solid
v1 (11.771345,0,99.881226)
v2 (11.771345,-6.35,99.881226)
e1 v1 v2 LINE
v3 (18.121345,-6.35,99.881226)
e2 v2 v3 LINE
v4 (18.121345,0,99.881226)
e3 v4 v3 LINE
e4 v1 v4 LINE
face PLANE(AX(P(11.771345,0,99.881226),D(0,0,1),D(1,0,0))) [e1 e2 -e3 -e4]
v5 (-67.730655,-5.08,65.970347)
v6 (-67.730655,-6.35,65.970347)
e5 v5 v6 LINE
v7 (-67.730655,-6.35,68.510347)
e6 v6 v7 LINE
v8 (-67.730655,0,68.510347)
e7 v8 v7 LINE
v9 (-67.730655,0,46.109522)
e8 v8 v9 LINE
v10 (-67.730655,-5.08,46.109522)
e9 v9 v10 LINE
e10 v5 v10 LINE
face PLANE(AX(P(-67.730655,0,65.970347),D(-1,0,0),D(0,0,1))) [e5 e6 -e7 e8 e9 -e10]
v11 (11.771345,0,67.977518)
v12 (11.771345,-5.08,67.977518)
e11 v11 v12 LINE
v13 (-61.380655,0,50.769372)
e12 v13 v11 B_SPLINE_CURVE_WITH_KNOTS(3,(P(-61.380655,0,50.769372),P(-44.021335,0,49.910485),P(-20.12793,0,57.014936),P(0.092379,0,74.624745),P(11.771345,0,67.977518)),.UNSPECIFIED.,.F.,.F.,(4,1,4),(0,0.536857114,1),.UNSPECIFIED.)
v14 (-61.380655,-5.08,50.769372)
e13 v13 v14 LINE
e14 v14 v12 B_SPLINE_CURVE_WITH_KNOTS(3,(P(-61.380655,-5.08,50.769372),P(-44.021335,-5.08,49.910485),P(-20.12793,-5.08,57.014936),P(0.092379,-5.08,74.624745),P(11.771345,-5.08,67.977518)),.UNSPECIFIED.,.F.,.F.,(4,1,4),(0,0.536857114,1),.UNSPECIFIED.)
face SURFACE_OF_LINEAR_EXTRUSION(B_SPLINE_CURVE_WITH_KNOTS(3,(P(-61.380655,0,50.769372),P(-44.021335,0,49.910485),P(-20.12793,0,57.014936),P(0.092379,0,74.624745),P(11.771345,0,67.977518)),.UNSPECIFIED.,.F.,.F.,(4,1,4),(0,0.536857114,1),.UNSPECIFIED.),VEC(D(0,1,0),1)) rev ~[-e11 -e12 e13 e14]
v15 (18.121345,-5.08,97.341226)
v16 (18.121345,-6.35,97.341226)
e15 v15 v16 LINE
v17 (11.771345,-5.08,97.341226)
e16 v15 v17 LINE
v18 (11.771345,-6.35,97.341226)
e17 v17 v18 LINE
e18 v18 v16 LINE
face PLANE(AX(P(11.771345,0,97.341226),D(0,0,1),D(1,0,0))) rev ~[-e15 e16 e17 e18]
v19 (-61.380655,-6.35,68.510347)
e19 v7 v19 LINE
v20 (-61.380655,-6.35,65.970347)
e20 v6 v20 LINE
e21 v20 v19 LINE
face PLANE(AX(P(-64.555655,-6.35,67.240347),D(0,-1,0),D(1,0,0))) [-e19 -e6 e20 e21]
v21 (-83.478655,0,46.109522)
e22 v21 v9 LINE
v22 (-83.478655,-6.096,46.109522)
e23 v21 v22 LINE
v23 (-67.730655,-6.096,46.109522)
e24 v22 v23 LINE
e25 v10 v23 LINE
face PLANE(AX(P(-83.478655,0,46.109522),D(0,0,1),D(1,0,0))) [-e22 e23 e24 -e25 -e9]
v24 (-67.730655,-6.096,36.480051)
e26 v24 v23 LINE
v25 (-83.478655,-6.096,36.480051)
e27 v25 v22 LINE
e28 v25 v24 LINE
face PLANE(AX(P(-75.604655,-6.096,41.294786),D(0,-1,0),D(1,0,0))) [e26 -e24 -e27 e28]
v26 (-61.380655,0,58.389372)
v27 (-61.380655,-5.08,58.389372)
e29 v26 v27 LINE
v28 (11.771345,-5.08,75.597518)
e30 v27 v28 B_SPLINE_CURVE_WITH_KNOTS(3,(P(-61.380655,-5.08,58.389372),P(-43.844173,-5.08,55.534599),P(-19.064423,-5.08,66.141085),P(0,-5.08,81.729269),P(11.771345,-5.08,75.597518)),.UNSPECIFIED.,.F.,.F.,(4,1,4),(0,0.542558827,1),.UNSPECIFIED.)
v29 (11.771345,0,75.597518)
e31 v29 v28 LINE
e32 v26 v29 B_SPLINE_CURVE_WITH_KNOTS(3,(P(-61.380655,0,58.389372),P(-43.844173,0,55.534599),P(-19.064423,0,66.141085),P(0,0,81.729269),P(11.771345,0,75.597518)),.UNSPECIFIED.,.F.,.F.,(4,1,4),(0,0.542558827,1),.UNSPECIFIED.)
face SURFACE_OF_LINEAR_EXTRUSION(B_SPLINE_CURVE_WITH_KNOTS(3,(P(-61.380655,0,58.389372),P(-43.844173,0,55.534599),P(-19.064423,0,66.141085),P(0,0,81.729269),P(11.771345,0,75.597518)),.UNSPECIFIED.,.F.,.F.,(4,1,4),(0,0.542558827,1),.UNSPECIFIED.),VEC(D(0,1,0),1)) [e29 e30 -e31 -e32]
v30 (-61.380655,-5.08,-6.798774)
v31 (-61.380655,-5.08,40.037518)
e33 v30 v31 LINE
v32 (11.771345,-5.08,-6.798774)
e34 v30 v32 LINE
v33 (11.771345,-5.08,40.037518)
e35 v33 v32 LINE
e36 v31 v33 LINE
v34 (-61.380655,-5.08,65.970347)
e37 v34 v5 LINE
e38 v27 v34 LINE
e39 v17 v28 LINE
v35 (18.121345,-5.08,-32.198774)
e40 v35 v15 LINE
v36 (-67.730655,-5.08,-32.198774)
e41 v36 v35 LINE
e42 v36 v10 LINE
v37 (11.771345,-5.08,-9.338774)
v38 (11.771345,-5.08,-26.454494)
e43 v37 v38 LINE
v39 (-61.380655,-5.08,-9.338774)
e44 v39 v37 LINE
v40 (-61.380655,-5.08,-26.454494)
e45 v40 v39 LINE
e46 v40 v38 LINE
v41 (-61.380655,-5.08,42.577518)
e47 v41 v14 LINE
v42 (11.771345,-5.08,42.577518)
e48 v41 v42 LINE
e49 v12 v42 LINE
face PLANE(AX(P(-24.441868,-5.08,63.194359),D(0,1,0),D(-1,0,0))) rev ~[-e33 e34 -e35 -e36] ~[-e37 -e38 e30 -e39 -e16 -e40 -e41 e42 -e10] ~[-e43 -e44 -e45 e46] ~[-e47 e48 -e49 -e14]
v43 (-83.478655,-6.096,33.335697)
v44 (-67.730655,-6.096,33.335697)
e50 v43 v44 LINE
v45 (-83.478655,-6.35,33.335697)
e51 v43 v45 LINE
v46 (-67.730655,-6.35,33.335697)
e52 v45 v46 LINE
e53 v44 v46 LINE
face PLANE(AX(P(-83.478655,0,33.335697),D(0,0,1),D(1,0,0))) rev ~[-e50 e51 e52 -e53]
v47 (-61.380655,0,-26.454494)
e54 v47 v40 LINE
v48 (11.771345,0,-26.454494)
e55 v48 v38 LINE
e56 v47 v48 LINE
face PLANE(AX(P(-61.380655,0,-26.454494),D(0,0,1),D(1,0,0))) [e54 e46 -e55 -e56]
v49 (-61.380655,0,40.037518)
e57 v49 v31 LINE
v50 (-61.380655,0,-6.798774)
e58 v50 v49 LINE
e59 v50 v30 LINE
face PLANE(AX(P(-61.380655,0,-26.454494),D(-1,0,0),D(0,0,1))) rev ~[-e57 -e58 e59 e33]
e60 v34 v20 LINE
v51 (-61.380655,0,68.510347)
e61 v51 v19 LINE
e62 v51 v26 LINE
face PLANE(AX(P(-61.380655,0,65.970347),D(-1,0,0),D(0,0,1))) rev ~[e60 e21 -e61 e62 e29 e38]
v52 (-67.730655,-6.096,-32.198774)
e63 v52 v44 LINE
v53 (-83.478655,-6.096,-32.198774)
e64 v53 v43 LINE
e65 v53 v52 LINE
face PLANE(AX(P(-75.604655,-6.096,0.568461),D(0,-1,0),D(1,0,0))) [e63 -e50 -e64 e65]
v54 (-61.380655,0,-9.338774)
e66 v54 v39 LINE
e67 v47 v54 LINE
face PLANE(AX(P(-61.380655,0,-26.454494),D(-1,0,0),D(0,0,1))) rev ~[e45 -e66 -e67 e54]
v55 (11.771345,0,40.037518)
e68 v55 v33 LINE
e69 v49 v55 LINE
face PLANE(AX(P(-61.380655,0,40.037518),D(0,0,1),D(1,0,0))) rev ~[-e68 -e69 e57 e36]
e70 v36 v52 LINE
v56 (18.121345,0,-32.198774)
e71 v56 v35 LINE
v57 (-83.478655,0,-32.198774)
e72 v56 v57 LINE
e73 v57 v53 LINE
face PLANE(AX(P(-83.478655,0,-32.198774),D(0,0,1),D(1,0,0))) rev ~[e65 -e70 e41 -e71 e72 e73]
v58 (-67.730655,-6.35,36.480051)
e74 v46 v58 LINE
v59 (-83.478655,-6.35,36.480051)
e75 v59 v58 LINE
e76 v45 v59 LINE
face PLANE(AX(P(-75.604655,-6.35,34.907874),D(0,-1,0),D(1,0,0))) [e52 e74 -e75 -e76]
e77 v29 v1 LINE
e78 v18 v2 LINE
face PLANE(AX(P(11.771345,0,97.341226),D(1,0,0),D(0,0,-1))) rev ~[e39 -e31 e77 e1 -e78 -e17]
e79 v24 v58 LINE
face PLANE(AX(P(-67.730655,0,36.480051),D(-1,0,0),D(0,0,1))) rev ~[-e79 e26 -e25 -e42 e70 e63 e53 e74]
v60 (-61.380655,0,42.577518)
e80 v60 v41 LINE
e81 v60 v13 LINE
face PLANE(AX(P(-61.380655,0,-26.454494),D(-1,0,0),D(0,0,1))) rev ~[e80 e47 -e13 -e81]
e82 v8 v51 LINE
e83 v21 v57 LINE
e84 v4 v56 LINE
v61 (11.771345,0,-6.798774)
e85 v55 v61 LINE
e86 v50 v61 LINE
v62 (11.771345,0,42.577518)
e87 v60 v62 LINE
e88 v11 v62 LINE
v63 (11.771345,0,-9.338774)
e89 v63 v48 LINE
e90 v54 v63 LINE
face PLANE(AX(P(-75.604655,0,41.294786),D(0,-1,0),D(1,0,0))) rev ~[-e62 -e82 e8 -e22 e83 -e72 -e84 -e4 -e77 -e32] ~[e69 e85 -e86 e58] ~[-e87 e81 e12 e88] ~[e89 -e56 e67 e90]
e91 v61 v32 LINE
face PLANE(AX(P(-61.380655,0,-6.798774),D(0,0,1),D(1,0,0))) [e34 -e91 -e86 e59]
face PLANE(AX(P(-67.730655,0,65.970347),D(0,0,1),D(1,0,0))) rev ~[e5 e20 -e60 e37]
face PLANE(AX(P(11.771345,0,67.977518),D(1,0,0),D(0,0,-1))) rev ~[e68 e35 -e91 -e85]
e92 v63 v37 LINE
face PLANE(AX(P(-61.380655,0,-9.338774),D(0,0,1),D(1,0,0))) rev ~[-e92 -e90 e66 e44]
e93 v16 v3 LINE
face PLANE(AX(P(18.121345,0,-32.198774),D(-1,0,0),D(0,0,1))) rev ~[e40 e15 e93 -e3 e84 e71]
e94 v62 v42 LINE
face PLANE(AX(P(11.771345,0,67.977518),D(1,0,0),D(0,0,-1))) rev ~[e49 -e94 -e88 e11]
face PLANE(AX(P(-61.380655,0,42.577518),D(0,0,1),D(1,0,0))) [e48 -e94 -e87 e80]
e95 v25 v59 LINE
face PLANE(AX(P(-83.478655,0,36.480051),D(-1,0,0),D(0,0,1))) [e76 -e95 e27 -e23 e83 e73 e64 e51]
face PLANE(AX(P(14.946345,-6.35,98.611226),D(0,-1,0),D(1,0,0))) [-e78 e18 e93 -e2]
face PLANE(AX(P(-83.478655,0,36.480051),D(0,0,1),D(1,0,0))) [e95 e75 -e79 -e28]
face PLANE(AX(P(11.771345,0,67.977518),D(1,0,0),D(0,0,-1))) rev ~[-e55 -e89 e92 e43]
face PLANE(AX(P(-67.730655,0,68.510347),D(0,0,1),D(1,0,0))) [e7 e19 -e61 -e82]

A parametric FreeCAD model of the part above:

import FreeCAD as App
import Part
import Sketcher
from FreeCAD import Vector
Q = App.Units.Quantity

doc = App.newDocument("Part")
body = doc.addObject("PartDesign::Body", "Body")

# Sketch on XZ plane
sketch1 = body.newObject("Sketcher::SketchObject", "Sketch")
sketch1.AttachmentSupport = (doc.getObject("XZ_Plane"), [""])
sketch1.MapMode = "FlatFace"
sketch1.addGeometry([
    Part.BSplineCurve([Vector(-61.380655, 58.389372, 0), Vector(-43.844173, 55.534599, 0), Vector(-19.064423, 66.141085, 0), Vector(0, 81.729269, 0), Vector(11.771345, 75.597518, 0)], [4, 1, 4], [0, 0.542558827, 1], False, 3, [1, 1, 1, 1, 1], False),  # 0
    Part.LineSegment(Vector(-61.380655, 58.389372, 0), Vector(-61.380655, 65.970347, 0)),  # 1
    Part.LineSegment(Vector(-61.380655, 65.970347, 0), Vector(-67.730655, 65.970347, 0)),  # 2
    Part.LineSegment(Vector(-67.730655, 65.970347, 0), Vector(-67.730655, -32.198774, 0)),  # 3
    Part.LineSegment(Vector(-67.730655, -32.198774, 0), Vector(18.121345, -32.198774, 0)),  # 4
    Part.LineSegment(Vector(18.121345, -32.198774, 0), Vector(18.121345, 97.341226, 0)),  # 5
    Part.LineSegment(Vector(18.121345, 97.341226, 0), Vector(11.771345, 97.341226, 0)),  # 6
    Part.LineSegment(Vector(11.771345, 97.341226, 0), Vector(11.771345, 75.597518, 0)),  # 7
    Part.BSplineCurve([Vector(-61.380655, 50.769372, 0), Vector(-44.021335, 49.910485, 0), Vector(-20.12793, 57.014936, 0), Vector(0.092379, 74.624745, 0), Vector(11.771345, 67.977518, 0)], [4, 1, 4], [0, 0.536857114, 1], False, 3, [1, 1, 1, 1, 1], False),  # 8
    Part.LineSegment(Vector(11.771345, 67.977518, 0), Vector(11.771345, -26.454494, 0)),  # 9
    Part.LineSegment(Vector(11.771345, -26.454494, 0), Vector(-61.380655, -26.454494, 0)),  # 10
    Part.LineSegment(Vector(-61.380655, -26.454494, 0), Vector(-61.380655, 50.769372, 0)),  # 11
], False)
sketch1.addConstraint([
    Sketcher.Constraint("Block", 0),
    Sketcher.Constraint("Block", 8),
    Sketcher.Constraint("Coincident", 0, 1, 1, 1),
    Sketcher.Constraint("Coincident", 1, 2, 2, 1),
    Sketcher.Constraint("Coincident", 2, 2, 3, 1),
    Sketcher.Constraint("Coincident", 3, 2, 4, 1),
    Sketcher.Constraint("Coincident", 4, 2, 5, 1),
    Sketcher.Constraint("Coincident", 5, 2, 6, 1),
    Sketcher.Constraint("Coincident", 6, 2, 7, 1),
    Sketcher.Constraint("Coincident", 7, 2, 0, 2),
    Sketcher.Constraint("Coincident", 8, 2, 9, 1),
    Sketcher.Constraint("Coincident", 9, 2, 10, 1),
    Sketcher.Constraint("Coincident", 10, 2, 11, 1),
    Sketcher.Constraint("Coincident", 11, 2, 8, 1),
    Sketcher.Constraint("Vertical", 1),
    Sketcher.Constraint("Horizontal", 2),
    Sketcher.Constraint("Vertical", 3),
    Sketcher.Constraint("Horizontal", 4),
    Sketcher.Constraint("Vertical", 5),
    Sketcher.Constraint("Horizontal", 6),
    Sketcher.Constraint("Vertical", 7),
    Sketcher.Constraint("Vertical", 9),
    Sketcher.Constraint("Horizontal", 10),
    Sketcher.Constraint("Vertical", 11),
    Sketcher.Constraint("Equal", 2, 6),
    Sketcher.Constraint("DistanceY", 5, 1, 5, 2, Q("5.1 in")),
    Sketcher.Constraint("DistanceX", 2, 2, 2, 1, Q("0.25 in")),
    Sketcher.Constraint("DistanceY", 3, 2, 3, 1, Q("98.169121 mm")),
    Sketcher.Constraint("DistanceY", 1, 1, 1, 2, Q("7.580975 mm")),
    Sketcher.Constraint("DistanceY", 9, 2, 9, 1, Q("94.432013 mm")),
])
pad1 = body.newObject("PartDesign::Pad", "Pad")
pad1.Profile = sketch1
pad1.Length = Q("0.2 in")

# Sketch on XZ plane
sketch2 = body.newObject("Sketcher::SketchObject", "Sketch001")
sketch2.AttachmentSupport = (doc.getObject("XZ_Plane"), [""])
sketch2.MapMode = "FlatFace"
sketch2.addGeometry([
    Part.LineSegment(Vector(-67.730655, 68.510347, 0), Vector(-67.730655, 65.970347, 0)),  # 0
    Part.LineSegment(Vector(-67.730655, 65.970347, 0), Vector(-61.380655, 65.970347, 0)),  # 1
    Part.LineSegment(Vector(-61.380655, 65.970347, 0), Vector(-61.380655, 68.510347, 0)),  # 2
    Part.LineSegment(Vector(-61.380655, 68.510347, 0), Vector(-67.730655, 68.510347, 0)),  # 3
    Part.LineSegment(Vector(11.771345, 99.881226, 0), Vector(11.771345, 97.341226, 0)),  # 4
    Part.LineSegment(Vector(11.771345, 97.341226, 0), Vector(18.121345, 97.341226, 0)),  # 5
    Part.LineSegment(Vector(18.121345, 97.341226, 0), Vector(18.121345, 99.881226, 0)),  # 6
    Part.LineSegment(Vector(18.121345, 99.881226, 0), Vector(11.771345, 99.881226, 0)),  # 7
    Part.LineSegment(Vector(-83.478655, 36.480051, 0), Vector(-83.478655, 33.335697, 0)),  # 8
    Part.LineSegment(Vector(-83.478655, 33.335697, 0), Vector(-67.730655, 33.335697, 0)),  # 9
    Part.LineSegment(Vector(-67.730655, 33.335697, 0), Vector(-67.730655, 36.480051, 0)),  # 10
    Part.LineSegment(Vector(-67.730655, 36.480051, 0), Vector(-83.478655, 36.480051, 0)),  # 11
], False)
sketch2.addConstraint([
    Sketcher.Constraint("Coincident", 0, 2, 1, 1),
    Sketcher.Constraint("Coincident", 1, 2, 2, 1),
    Sketcher.Constraint("Coincident", 2, 2, 3, 1),
    Sketcher.Constraint("Coincident", 3, 2, 0, 1),
    Sketcher.Constraint("Coincident", 4, 2, 5, 1),
    Sketcher.Constraint("Coincident", 5, 2, 6, 1),
    Sketcher.Constraint("Coincident", 6, 2, 7, 1),
    Sketcher.Constraint("Coincident", 7, 2, 4, 1),
    Sketcher.Constraint("Coincident", 8, 2, 9, 1),
    Sketcher.Constraint("Coincident", 9, 2, 10, 1),
    Sketcher.Constraint("Coincident", 10, 2, 11, 1),
    Sketcher.Constraint("Coincident", 11, 2, 8, 1),
    Sketcher.Constraint("Vertical", 0),
    Sketcher.Constraint("Horizontal", 1),
    Sketcher.Constraint("Vertical", 2),
    Sketcher.Constraint("Horizontal", 3),
    Sketcher.Constraint("Vertical", 4),
    Sketcher.Constraint("Horizontal", 5),
    Sketcher.Constraint("Vertical", 6),
    Sketcher.Constraint("Horizontal", 7),
    Sketcher.Constraint("Vertical", 8),
    Sketcher.Constraint("Horizontal", 9),
    Sketcher.Constraint("Vertical", 10),
    Sketcher.Constraint("Horizontal", 11),
    Sketcher.Constraint("Vertical", 3, 2, 9, 2),
    Sketcher.Constraint("Equal", 3, 5),
    Sketcher.Constraint("Equal", 2, 4),
    Sketcher.Constraint("DistanceY", 0, 2, 0, 1, Q("0.1 in")),
    Sketcher.Constraint("DistanceX", 1, 1, 1, 2, Q("0.25 in")),
    Sketcher.Constraint("DistanceX", 9, 1, 9, 2, Q("0.62 in")),
    Sketcher.Constraint("DistanceX", 2, 2, 4, 2, Q("2.88 in")),
    Sketcher.Constraint("DistanceY", 8, 2, 8, 1, Q("3.144354 mm")),
    Sketcher.Constraint("DistanceY", -1, 1, 10, 2, Q("36.480051 mm")),
    Sketcher.Constraint("DistanceY", 2, 2, 4, 2, Q("28.830879 mm")),
    Sketcher.Constraint("DistanceY", 8, 2, 0, 2, Q("32.63465 mm")),
    Sketcher.Constraint("DistanceX", 0, 2, -1, 1, Q("67.730655 mm")),
])
pad2 = body.newObject("PartDesign::Pad", "Pad001")
pad2.Profile = sketch2
pad2.Length = Q("0.25 in")

# Sketch on XZ plane
sketch3 = body.newObject("Sketcher::SketchObject", "Sketch002")
sketch3.AttachmentSupport = (doc.getObject("XZ_Plane"), [""])
sketch3.MapMode = "FlatFace"
sketch3.addGeometry([
    Part.LineSegment(Vector(-83.478655, 46.109522, 0), Vector(-83.478655, 36.480051, 0)),  # 0
    Part.LineSegment(Vector(-83.478655, 36.480051, 0), Vector(-67.730655, 36.480051, 0)),  # 1
    Part.LineSegment(Vector(-67.730655, 36.480051, 0), Vector(-67.730655, 46.109522, 0)),  # 2
    Part.LineSegment(Vector(-67.730655, 46.109522, 0), Vector(-83.478655, 46.109522, 0)),  # 3
    Part.LineSegment(Vector(-83.478655, 33.335697, 0), Vector(-83.478655, -32.198774, 0)),  # 4
    Part.LineSegment(Vector(-83.478655, -32.198774, 0), Vector(-67.730655, -32.198774, 0)),  # 5
    Part.LineSegment(Vector(-67.730655, -32.198774, 0), Vector(-67.730655, 33.335697, 0)),  # 6
    Part.LineSegment(Vector(-67.730655, 33.335697, 0), Vector(-83.478655, 33.335697, 0)),  # 7
], False)
sketch3.addConstraint([
    Sketcher.Constraint("Coincident", 0, 2, 1, 1),
    Sketcher.Constraint("Coincident", 1, 2, 2, 1),
    Sketcher.Constraint("Coincident", 2, 2, 3, 1),
    Sketcher.Constraint("Coincident", 3, 2, 0, 1),
    Sketcher.Constraint("Coincident", 4, 2, 5, 1),
    Sketcher.Constraint("Coincident", 5, 2, 6, 1),
    Sketcher.Constraint("Coincident", 6, 2, 7, 1),
    Sketcher.Constraint("Coincident", 7, 2, 4, 1),
    Sketcher.Constraint("Vertical", 0),
    Sketcher.Constraint("Horizontal", 1),
    Sketcher.Constraint("Vertical", 2),
    Sketcher.Constraint("Horizontal", 3),
    Sketcher.Constraint("Vertical", 4),
    Sketcher.Constraint("Horizontal", 5),
    Sketcher.Constraint("Vertical", 6),
    Sketcher.Constraint("Horizontal", 7),
    Sketcher.Constraint("Vertical", 3, 2, 4, 2),
    Sketcher.Constraint("Vertical", 2, 2, 5, 2),
    Sketcher.Constraint("DistanceX", 1, 1, 1, 2, Q("0.62 in")),
    Sketcher.Constraint("DistanceY", 0, 2, 0, 1, Q("9.629471 mm")),
    Sketcher.Constraint("DistanceY", 4, 2, 4, 1, Q("65.534471 mm")),
    Sketcher.Constraint("DistanceY", -1, 1, 0, 2, Q("36.480051 mm")),
    Sketcher.Constraint("DistanceX", 0, 2, -1, 1, Q("83.478655 mm")),
    Sketcher.Constraint("DistanceY", 4, 2, -1, 1, Q("32.198774 mm")),
])
pad3 = body.newObject("PartDesign::Pad", "Pad002")
pad3.Profile = sketch3
pad3.Length = Q("0.24 in")

# Sketch on XZ plane
sketch4 = body.newObject("Sketcher::SketchObject", "Sketch003")
sketch4.AttachmentSupport = (doc.getObject("XZ_Plane"), [""])
sketch4.MapMode = "FlatFace"
sketch4.addGeometry([
    Part.LineSegment(Vector(-61.380655, 42.577518, 0), Vector(-61.380655, 40.037518, 0)),
    Part.LineSegment(Vector(-61.380655, 40.037518, 0), Vector(11.771345, 40.037518, 0)),
    Part.LineSegment(Vector(11.771345, 40.037518, 0), Vector(11.771345, 42.577518, 0)),
    Part.LineSegment(Vector(11.771345, 42.577518, 0), Vector(-61.380655, 42.577518, 0)),
], False)
sketch4.addConstraint([
    Sketcher.Constraint("Coincident", 0, 2, 1, 1),
    Sketcher.Constraint("Coincident", 1, 2, 2, 1),
    Sketcher.Constraint("Coincident", 2, 2, 3, 1),
    Sketcher.Constraint("Coincident", 3, 2, 0, 1),
    Sketcher.Constraint("Vertical", 0),
    Sketcher.Constraint("Horizontal", 1),
    Sketcher.Constraint("Vertical", 2),
    Sketcher.Constraint("Horizontal", 3),
    Sketcher.Constraint("DistanceY", 0, 2, 0, 1, Q("0.1 in")),
    Sketcher.Constraint("DistanceX", 1, 1, 1, 2, Q("2.88 in")),
    Sketcher.Constraint("DistanceY", -1, 1, 0, 2, Q("40.037518 mm")),
    Sketcher.Constraint("DistanceX", 0, 2, -1, 1, Q("61.380655 mm")),
])
pad4 = body.newObject("PartDesign::Pad", "Pad003")
pad4.Profile = sketch4
pad4.Length = Q("0.2 in")

# Sketch on XZ plane
sketch5 = body.newObject("Sketcher::SketchObject", "Sketch004")
sketch5.AttachmentSupport = (doc.getObject("XZ_Plane"), [""])
sketch5.MapMode = "FlatFace"
sketch5.addGeometry([
    Part.LineSegment(Vector(-61.380655, -6.798774, 0), Vector(-61.380655, -9.338774, 0)),
    Part.LineSegment(Vector(-61.380655, -9.338774, 0), Vector(11.771345, -9.338774, 0)),
    Part.LineSegment(Vector(11.771345, -9.338774, 0), Vector(11.771345, -6.798774, 0)),
    Part.LineSegment(Vector(11.771345, -6.798774, 0), Vector(-61.380655, -6.798774, 0)),
], False)
sketch5.addConstraint([
    Sketcher.Constraint("Coincident", 0, 2, 1, 1),
    Sketcher.Constraint("Coincident", 1, 2, 2, 1),
    Sketcher.Constraint("Coincident", 2, 2, 3, 1),
    Sketcher.Constraint("Coincident", 3, 2, 0, 1),
    Sketcher.Constraint("Vertical", 0),
    Sketcher.Constraint("Horizontal", 1),
    Sketcher.Constraint("Vertical", 2),
    Sketcher.Constraint("Horizontal", 3),
    Sketcher.Constraint("DistanceY", 0, 2, 0, 1, Q("0.1 in")),
    Sketcher.Constraint("DistanceX", 1, 1, 1, 2, Q("2.88 in")),
    Sketcher.Constraint("DistanceX", 0, 2, -1, 1, Q("61.380655 mm")),
    Sketcher.Constraint("DistanceY", 0, 2, -1, 1, Q("9.338774 mm")),
])
pad5 = body.newObject("PartDesign::Pad", "Pad004")
pad5.Profile = sketch5
pad5.Length = Q("0.2 in")

doc.recompute()
